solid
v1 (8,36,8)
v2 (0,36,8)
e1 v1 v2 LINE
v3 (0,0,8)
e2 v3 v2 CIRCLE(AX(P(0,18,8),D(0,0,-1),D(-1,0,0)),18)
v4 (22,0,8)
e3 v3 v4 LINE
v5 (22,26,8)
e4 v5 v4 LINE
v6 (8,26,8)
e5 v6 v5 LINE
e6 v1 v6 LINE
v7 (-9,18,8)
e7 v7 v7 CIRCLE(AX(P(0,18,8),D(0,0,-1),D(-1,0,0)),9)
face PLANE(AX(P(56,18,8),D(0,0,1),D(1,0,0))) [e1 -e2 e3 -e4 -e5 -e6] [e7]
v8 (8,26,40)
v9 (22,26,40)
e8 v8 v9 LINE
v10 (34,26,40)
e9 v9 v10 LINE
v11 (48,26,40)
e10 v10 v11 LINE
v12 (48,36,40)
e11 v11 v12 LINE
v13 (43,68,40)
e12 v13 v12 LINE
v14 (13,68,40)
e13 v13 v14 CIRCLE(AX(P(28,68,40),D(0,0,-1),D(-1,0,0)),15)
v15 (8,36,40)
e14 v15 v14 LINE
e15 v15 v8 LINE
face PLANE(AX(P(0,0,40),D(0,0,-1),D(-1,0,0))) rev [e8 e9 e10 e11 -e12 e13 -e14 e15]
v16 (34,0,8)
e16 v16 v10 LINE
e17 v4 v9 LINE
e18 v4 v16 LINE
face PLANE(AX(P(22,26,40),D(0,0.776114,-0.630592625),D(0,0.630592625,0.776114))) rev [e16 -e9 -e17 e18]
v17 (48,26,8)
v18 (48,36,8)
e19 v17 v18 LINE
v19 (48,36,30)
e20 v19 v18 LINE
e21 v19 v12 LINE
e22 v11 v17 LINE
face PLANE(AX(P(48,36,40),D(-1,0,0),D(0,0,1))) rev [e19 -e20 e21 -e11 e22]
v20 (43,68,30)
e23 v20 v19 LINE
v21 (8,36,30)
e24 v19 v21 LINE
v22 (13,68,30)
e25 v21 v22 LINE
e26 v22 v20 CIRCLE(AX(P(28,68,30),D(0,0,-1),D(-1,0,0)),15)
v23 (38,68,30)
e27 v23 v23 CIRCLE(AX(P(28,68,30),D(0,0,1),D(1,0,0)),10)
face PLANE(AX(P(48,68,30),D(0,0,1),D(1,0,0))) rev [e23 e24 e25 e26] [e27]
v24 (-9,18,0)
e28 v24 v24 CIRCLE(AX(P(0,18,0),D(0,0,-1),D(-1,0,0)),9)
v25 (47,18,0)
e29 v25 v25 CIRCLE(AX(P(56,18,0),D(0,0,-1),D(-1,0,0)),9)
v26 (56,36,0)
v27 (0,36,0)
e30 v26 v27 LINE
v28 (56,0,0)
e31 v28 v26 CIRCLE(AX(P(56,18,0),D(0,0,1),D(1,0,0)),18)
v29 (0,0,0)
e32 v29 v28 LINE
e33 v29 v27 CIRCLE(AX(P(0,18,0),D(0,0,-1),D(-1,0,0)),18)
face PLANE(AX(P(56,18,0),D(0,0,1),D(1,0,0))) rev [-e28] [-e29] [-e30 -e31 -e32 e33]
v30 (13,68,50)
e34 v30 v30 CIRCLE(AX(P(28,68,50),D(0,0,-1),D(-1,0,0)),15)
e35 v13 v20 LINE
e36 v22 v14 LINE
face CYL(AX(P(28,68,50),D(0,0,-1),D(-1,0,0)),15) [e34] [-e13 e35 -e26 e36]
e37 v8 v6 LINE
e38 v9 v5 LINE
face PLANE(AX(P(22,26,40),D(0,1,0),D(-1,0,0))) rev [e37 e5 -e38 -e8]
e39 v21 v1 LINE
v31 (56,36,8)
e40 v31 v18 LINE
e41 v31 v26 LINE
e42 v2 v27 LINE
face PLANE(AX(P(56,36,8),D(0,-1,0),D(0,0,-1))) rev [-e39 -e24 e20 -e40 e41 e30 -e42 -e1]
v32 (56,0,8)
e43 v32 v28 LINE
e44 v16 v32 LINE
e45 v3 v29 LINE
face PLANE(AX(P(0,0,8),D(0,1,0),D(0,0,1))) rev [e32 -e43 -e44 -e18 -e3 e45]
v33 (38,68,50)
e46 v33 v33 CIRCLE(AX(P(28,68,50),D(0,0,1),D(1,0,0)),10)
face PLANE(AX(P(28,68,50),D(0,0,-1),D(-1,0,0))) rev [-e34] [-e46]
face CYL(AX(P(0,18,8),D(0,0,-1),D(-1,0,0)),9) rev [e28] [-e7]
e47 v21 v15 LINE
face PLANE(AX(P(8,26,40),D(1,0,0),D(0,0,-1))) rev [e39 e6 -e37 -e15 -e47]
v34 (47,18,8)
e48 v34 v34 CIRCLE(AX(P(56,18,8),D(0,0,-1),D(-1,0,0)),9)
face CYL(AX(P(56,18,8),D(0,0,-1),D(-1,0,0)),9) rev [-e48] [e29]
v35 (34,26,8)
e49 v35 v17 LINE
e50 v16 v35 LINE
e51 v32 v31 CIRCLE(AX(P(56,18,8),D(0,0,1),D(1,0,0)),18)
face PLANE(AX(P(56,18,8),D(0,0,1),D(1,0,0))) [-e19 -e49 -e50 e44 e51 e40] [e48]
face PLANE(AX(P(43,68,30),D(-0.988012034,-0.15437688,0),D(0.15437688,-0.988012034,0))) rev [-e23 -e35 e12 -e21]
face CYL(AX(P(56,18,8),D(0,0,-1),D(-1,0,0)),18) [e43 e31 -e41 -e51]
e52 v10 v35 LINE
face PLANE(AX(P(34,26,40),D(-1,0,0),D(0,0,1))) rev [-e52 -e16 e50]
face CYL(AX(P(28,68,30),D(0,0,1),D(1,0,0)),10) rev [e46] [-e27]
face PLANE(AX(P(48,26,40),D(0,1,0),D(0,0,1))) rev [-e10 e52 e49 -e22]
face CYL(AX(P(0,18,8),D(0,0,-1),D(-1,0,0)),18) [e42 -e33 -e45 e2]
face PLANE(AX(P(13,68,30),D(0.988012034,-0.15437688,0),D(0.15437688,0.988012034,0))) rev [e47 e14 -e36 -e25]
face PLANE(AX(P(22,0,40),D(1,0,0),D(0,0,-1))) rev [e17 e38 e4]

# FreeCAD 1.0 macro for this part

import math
import FreeCAD as App
import Part
import Sketcher


def add_polygon(sketch, points):
    """Adds a closed chain of lines whose ends are joined by coincident constraints."""
    first, n = sketch.GeometryCount, len(points)
    for a, b in zip(points, points[1:] + points[:1]):
        sketch.addGeometry(Part.LineSegment(App.Vector(*a, 0), App.Vector(*b, 0)), False)
    for i in range(n):
        sketch.addConstraint(Sketcher.Constraint("Coincident", first + i, 2, first + (i + 1) % n, 1))

doc = App.newDocument("Part")
body = doc.addObject("PartDesign::Body", "Body")

# Sketch on XY plane
sketch1 = body.newObject("Sketcher::SketchObject", "Sketch")
sketch1.AttachmentSupport = (doc.getObject("XY_Plane"), [""])
sketch1.MapMode = "FlatFace"
sketch1.addGeometry([
    Part.LineSegment(App.Vector(0, 0, 0), App.Vector(56, 0, 0)),
    Part.ArcOfCircle(Part.Circle(App.Vector(56, 18, 0), App.Vector(0, 0, 1), 18), math.radians(-90), math.radians(90)),
    Part.LineSegment(App.Vector(56, 36, 0), App.Vector(0, 36, 0)),
    Part.ArcOfCircle(Part.Circle(App.Vector(0, 18, 0), App.Vector(0, 0, 1), 18), math.radians(90), math.radians(270)),
], False)
sketch1.addConstraint([
    Sketcher.Constraint("Tangent", 0, 2, 1, 1),
    Sketcher.Constraint("Tangent", 1, 2, 2, 1),
    Sketcher.Constraint("Tangent", 2, 2, 3, 1),
    Sketcher.Constraint("Tangent", 3, 2, 0, 1),
    Sketcher.Constraint("Horizontal", 0),
    Sketcher.Constraint("Horizontal", 2),
    Sketcher.Constraint("Coincident", 3, 2, -1, 1),
    Sketcher.Constraint("Radius", 1, 18.0),
    Sketcher.Constraint("DistanceX", 0, 1, 0, 2, 56.0),
])
pad1 = body.newObject("PartDesign::Pad", "Pad")
pad1.Profile = sketch1
pad1.Length = 8

# Sketch on XY plane
sketch2 = body.newObject("Sketcher::SketchObject", "Sketch001")
sketch2.AttachmentSupport = (doc.getObject("XY_Plane"), [""])
sketch2.MapMode = "FlatFace"
sketch2.addGeometry([
    Part.Circle(App.Vector(0, 18, 0), App.Vector(0, 0, 1), 9),
    Part.Circle(App.Vector(56, 18, 0), App.Vector(0, 0, 1), 9),
], False)
sketch2.addConstraint([
    Sketcher.Constraint("Equal", 0, 1),
    Sketcher.Constraint("PointOnObject", 0, 3, -2),
    Sketcher.Constraint("Horizontal", 0, 3, 1, 3),
    Sketcher.Constraint("Diameter", 0, 18.0),
    Sketcher.Constraint("DistanceY", -1, 1, 0, 3, 18.0),
    Sketcher.Constraint("DistanceX", -1, 1, 1, 3, 56.0),
])
pocket1 = body.newObject("PartDesign::Pocket", "Pocket")
pocket1.Profile = sketch2
pocket1.Length = 8
pocket1.Reversed = True

# Sketch on XY plane
sketch3 = body.newObject("Sketcher::SketchObject", "Sketch002")
sketch3.AttachmentSupport = (doc.getObject("XY_Plane"), [""])
sketch3.MapMode = "FlatFace"
sketch3.AttachmentOffset = App.Placement(App.Vector(0, 0, 8), App.Rotation())
add_polygon(sketch3, [(48, 36), (8, 36), (8, 26), (22, 26), (22, 0), (34, 0), (34, 26), (48, 26)])  # lines 0-7
sketch3.addConstraint([
    Sketcher.Constraint("Horizontal", 0),
    Sketcher.Constraint("Vertical", 1),
    Sketcher.Constraint("Horizontal", 2),
    Sketcher.Constraint("Vertical", 3),
    Sketcher.Constraint("Horizontal", 4),
    Sketcher.Constraint("Vertical", 5),
    Sketcher.Constraint("Horizontal", 6),
    Sketcher.Constraint("Vertical", 7),
    Sketcher.Constraint("PointOnObject", 3, 2, -1),
    Sketcher.Constraint("Horizontal", 2, 2, 5, 2),
    Sketcher.Constraint("Equal", 2, 6),
    Sketcher.Constraint("DistanceX", 0, 2, 0, 1, 40.0),
    Sketcher.Constraint("DistanceX", 2, 1, 2, 2, 14.0),
    Sketcher.Constraint("DistanceY", 1, 2, 1, 1, 10.0),
    Sketcher.Constraint("DistanceY", 3, 2, 3, 1, 26.0),
    Sketcher.Constraint("DistanceX", -1, 1, 0, 2, 8.0),
])
pad2 = body.newObject("PartDesign::Pad", "Pad001")
pad2.Profile = sketch3
pad2.Length = 32

# Sketch on YZ plane
sketch4 = body.newObject("Sketcher::SketchObject", "Sketch003")
sketch4.AttachmentSupport = (doc.getObject("YZ_Plane"), [""])
sketch4.MapMode = "FlatFace"
sketch4.AttachmentOffset = App.Placement(App.Vector(0, 0, 34), App.Rotation())
add_polygon(sketch4, [(0, 8), (26, 40), (0, 40)])  # lines 0-2
sketch4.addConstraint([
    Sketcher.Constraint("Horizontal", 1),
    Sketcher.Constraint("Vertical", 2),
    Sketcher.Constraint("PointOnObject", 1, 2, -2),
    Sketcher.Constraint("DistanceX", 1, 2, 1, 1, 26.0),
    Sketcher.Constraint("DistanceY", 2, 2, 2, 1, 32.0),
    Sketcher.Constraint("DistanceY", -1, 1, 0, 2, 40.0),
])
pocket2 = body.newObject("PartDesign::Pocket", "Pocket001")
pocket2.Profile = sketch4
pocket2.Length = 12

# Sketch on XZ plane
sketch5 = body.newObject("Sketcher::SketchObject", "Sketch004")
sketch5.AttachmentSupport = (doc.getObject("XZ_Plane"), [""])
sketch5.MapMode = "FlatFace"
sketch5.AttachmentOffset = App.Placement(App.Vector(0, 0, -36), App.Rotation())
add_polygon(sketch5, [(8, 30), (8, 40), (48, 40), (48, 30)])  # lines 0-3
sketch5.addConstraint([
    Sketcher.Constraint("Vertical", 0),
    Sketcher.Constraint("Horizontal", 1),
    Sketcher.Constraint("Vertical", 2),
    Sketcher.Constraint("Horizontal", 3),
    Sketcher.Constraint("DistanceX", 1, 1, 1, 2, 40.0),
    Sketcher.Constraint("DistanceY", 0, 1, 0, 2, 10.0),
    Sketcher.Constraint("DistanceX", -1, 1, 0, 2, 8.0),
    Sketcher.Constraint("DistanceY", -1, 1, 0, 2, 40.0),
])
pad3 = body.newObject("PartDesign::Pad", "Pad002")
pad3.Profile = sketch5
pad3.Length = 32
pad3.Reversed = True

# Sketch on XY plane
sketch6 = body.newObject("Sketcher::SketchObject", "Sketch005")
sketch6.AttachmentSupport = (doc.getObject("XY_Plane"), [""])
sketch6.MapMode = "FlatFace"
sketch6.AttachmentOffset = App.Placement(App.Vector(0, 0, 30), App.Rotation())
sketch6.addGeometry(Part.Circle(App.Vector(28, 68, 0), App.Vector(0, 0, 1), 15), False)
sketch6.addConstraint([
    Sketcher.Constraint("Diameter", 0, 30.0),
    Sketcher.Constraint("DistanceX", -1, 1, 0, 3, 28.0),
    Sketcher.Constraint("DistanceY", -1, 1, 0, 3, 68.0),
])
pad4 = body.newObject("PartDesign::Pad", "Pad003")
pad4.Profile = sketch6
pad4.Length = 20

# Sketch on XY plane
sketch7 = body.newObject("Sketcher::SketchObject", "Sketch006")
sketch7.AttachmentSupport = (doc.getObject("XY_Plane"), [""])
sketch7.MapMode = "FlatFace"
sketch7.AttachmentOffset = App.Placement(App.Vector(0, 0, 40), App.Rotation())
add_polygon(sketch7, [(43, 68), (48, 36), (48, 68)])  # lines 0-2
sketch7.addConstraint([
    Sketcher.Constraint("Vertical", 1),
    Sketcher.Constraint("Horizontal", 2),
    Sketcher.Constraint("DistanceX", 2, 2, 2, 1, 5.0),
    Sketcher.Constraint("DistanceY", 1, 1, 1, 2, 32.0),
    Sketcher.Constraint("DistanceX", -1, 1, 0, 2, 48.0),
    Sketcher.Constraint("DistanceY", -1, 1, 0, 2, 36.0),
])
pocket3 = body.newObject("PartDesign::Pocket", "Pocket002")
pocket3.Profile = sketch7
pocket3.Length = 10

# Sketch on XY plane
sketch8 = body.newObject("Sketcher::SketchObject", "Sketch007")
sketch8.AttachmentSupport = (doc.getObject("XY_Plane"), [""])
sketch8.MapMode = "FlatFace"
sketch8.AttachmentOffset = App.Placement(App.Vector(0, 0, 40), App.Rotation())
add_polygon(sketch8, [(8, 36), (13, 68), (8, 68)])  # lines 0-2
sketch8.addConstraint([
    Sketcher.Constraint("Horizontal", 1),
    Sketcher.Constraint("Vertical", 2),
    Sketcher.Constraint("DistanceX", 1, 2, 1, 1, 5.0),
    Sketcher.Constraint("DistanceY", 2, 2, 2, 1, 32.0),
    Sketcher.Constraint("DistanceX", -1, 1, 0, 2, 13.0),
    Sketcher.Constraint("DistanceY", -1, 1, 0, 2, 68.0),
])
pocket4 = body.newObject("PartDesign::Pocket", "Pocket003")
pocket4.Profile = sketch8
pocket4.Length = 10

# Sketch on XY plane
sketch9 = body.newObject("Sketcher::SketchObject", "Sketch008")
sketch9.AttachmentSupport = (doc.getObject("XY_Plane"), [""])
sketch9.MapMode = "FlatFace"
sketch9.AttachmentOffset = App.Placement(App.Vector(0, 0, 50), App.Rotation())
sketch9.addGeometry(Part.Circle(App.Vector(28, 68, 0), App.Vector(0, 0, 1), 10), False)
sketch9.addConstraint([
    Sketcher.Constraint("Diameter", 0, 20.0),
    Sketcher.Constraint("DistanceX", -1, 1, 0, 3, 28.0),
    Sketcher.Constraint("DistanceY", -1, 1, 0, 3, 68.0),
])
pocket5 = body.newObject("PartDesign::Pocket", "Pocket004")
pocket5.Profile = sketch9
pocket5.Length = 20

doc.recompute()
